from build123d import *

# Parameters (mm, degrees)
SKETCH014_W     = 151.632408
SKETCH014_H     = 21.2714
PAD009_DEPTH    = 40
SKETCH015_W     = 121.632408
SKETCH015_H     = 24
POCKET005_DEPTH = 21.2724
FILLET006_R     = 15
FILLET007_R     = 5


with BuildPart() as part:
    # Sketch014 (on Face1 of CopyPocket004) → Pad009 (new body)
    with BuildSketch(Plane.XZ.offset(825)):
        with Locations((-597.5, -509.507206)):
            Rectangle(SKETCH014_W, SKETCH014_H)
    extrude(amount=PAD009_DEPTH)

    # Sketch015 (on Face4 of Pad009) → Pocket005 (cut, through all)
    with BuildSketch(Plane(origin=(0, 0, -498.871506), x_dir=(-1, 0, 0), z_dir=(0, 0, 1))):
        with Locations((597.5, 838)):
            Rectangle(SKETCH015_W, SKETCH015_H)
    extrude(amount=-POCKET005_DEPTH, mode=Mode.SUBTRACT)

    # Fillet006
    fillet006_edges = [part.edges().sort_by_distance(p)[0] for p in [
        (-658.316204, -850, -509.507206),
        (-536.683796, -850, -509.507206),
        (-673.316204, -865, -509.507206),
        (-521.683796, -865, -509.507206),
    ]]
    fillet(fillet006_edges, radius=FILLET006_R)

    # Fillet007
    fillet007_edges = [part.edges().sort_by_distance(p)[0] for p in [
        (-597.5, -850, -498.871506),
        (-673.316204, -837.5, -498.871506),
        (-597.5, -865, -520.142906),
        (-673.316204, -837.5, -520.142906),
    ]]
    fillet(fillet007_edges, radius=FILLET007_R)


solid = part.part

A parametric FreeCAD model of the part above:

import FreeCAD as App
import Part
import Sketcher

V = App.Vector


def edges_at(feature, points):
    """Names of the edges that pass closest to the given points."""
    edges = feature.Shape.Edges
    near = lambda p: min(range(len(edges)), key=lambda i: edges[i].distToShape(Part.Vertex(*p))[0])
    return sorted({f"Edge{near(p) + 1}" for p in points})

doc = App.newDocument("Part")
body = doc.addObject("PartDesign::Body", "Body")

# Sketch on XZ plane
sketch1 = body.newObject("Sketcher::SketchObject", "Sketch")
sketch1.AttachmentSupport = (doc.getObject("XZ_Plane"), [""])
sketch1.MapMode = "FlatFace"
sketch1.AttachmentOffset = App.Placement(V(0, 0, 825), App.Rotation())
sketch1.addGeometry(Part.LineSegment(V(-673, -499, 0), V(-673, -520, 0)), False)
sketch1.addGeometry(Part.LineSegment(V(-673, -520, 0), V(-522, -520, 0)), False)
sketch1.addGeometry(Part.LineSegment(V(-522, -520, 0), V(-522, -499, 0)), False)
sketch1.addGeometry(Part.LineSegment(V(-522, -499, 0), V(-673, -499, 0)), False)
sketch1.addConstraint(Sketcher.Constraint("Coincident", 0, 2, 1, 1))
sketch1.addConstraint(Sketcher.Constraint("Coincident", 1, 2, 2, 1))
sketch1.addConstraint(Sketcher.Constraint("Coincident", 2, 2, 3, 1))
sketch1.addConstraint(Sketcher.Constraint("Coincident", 3, 2, 0, 1))
sketch1.addConstraint(Sketcher.Constraint("Vertical", 0))
sketch1.addConstraint(Sketcher.Constraint("Horizontal", 1))
sketch1.addConstraint(Sketcher.Constraint("Vertical", 2))
sketch1.addConstraint(Sketcher.Constraint("Horizontal", 3))
sketch1.addConstraint(Sketcher.Constraint("DistanceY", 0, 2, 0, 1, 21.2714))
sketch1.addConstraint(Sketcher.Constraint("DistanceX", 1, 1, 1, 2, 151.632408))
sketch1.addConstraint(Sketcher.Constraint("DistanceX", 0, 2, -1, 1, 673.316204))
sketch1.addConstraint(Sketcher.Constraint("DistanceY", 0, 2, -1, 1, 520.142906))
pad1 = body.newObject("PartDesign::Pad", "Pad")
pad1.Profile = sketch1
pad1.Length = 40

# Sketch on XY plane
sketch2 = body.newObject("Sketcher::SketchObject", "Sketch001")
sketch2.AttachmentSupport = (doc.getObject("XY_Plane"), [""])
sketch2.MapMode = "FlatFace"
sketch2.AttachmentOffset = App.Placement(V(0, 0, -498.871506), App.Rotation())
sketch2.addGeometry(Part.LineSegment(V(-537, -850, 0), V(-537, -826, 0)), False)
sketch2.addGeometry(Part.LineSegment(V(-537, -826, 0), V(-658, -826, 0)), False)
sketch2.addGeometry(Part.LineSegment(V(-658, -826, 0), V(-658, -850, 0)), False)
sketch2.addGeometry(Part.LineSegment(V(-658, -850, 0), V(-537, -850, 0)), False)
sketch2.addConstraint(Sketcher.Constraint("Coincident", 0, 2, 1, 1))
sketch2.addConstraint(Sketcher.Constraint("Coincident", 1, 2, 2, 1))
sketch2.addConstraint(Sketcher.Constraint("Coincident", 2, 2, 3, 1))
sketch2.addConstraint(Sketcher.Constraint("Coincident", 3, 2, 0, 1))
sketch2.addConstraint(Sketcher.Constraint("Vertical", 0))
sketch2.addConstraint(Sketcher.Constraint("Horizontal", 1))
sketch2.addConstraint(Sketcher.Constraint("Vertical", 2))
sketch2.addConstraint(Sketcher.Constraint("Horizontal", 3))
sketch2.addConstraint(Sketcher.Constraint("DistanceY", 0, 1, 0, 2, 24.0))
sketch2.addConstraint(Sketcher.Constraint("DistanceY", 0, 2, -1, 1, 826.0))
sketch2.addConstraint(Sketcher.Constraint("DistanceX", 1, 2, 1, 1, 121.632408))
sketch2.addConstraint(Sketcher.Constraint("DistanceX", 0, 2, -1, 1, 536.683796))
pocket1 = body.newObject("PartDesign::Pocket", "Pocket")
pocket1.Profile = sketch2
pocket1.Type = "ThroughAll"
doc.recompute()

fillet = body.newObject("PartDesign::Fillet", "Fillet")
fillet.Base = (pocket1, edges_at(pocket1, [
    (-658.316, -850, -509.507),
    (-536.684, -850, -509.507),
    (-673.316, -865, -509.507),
    (-521.684, -865, -509.507),
]))
fillet.Radius = 15
doc.recompute()

fillet2 = body.newObject("PartDesign::Fillet", "Fillet001")
fillet2.Base = (fillet, edges_at(fillet, [
    (-597.5, -850, -498.872),
    (-673.316, -837.5, -498.872),
    (-597.5, -865, -520.143),
    (-673.316, -837.5, -520.143),
]))
fillet2.Radius = 5

doc.recompute()
